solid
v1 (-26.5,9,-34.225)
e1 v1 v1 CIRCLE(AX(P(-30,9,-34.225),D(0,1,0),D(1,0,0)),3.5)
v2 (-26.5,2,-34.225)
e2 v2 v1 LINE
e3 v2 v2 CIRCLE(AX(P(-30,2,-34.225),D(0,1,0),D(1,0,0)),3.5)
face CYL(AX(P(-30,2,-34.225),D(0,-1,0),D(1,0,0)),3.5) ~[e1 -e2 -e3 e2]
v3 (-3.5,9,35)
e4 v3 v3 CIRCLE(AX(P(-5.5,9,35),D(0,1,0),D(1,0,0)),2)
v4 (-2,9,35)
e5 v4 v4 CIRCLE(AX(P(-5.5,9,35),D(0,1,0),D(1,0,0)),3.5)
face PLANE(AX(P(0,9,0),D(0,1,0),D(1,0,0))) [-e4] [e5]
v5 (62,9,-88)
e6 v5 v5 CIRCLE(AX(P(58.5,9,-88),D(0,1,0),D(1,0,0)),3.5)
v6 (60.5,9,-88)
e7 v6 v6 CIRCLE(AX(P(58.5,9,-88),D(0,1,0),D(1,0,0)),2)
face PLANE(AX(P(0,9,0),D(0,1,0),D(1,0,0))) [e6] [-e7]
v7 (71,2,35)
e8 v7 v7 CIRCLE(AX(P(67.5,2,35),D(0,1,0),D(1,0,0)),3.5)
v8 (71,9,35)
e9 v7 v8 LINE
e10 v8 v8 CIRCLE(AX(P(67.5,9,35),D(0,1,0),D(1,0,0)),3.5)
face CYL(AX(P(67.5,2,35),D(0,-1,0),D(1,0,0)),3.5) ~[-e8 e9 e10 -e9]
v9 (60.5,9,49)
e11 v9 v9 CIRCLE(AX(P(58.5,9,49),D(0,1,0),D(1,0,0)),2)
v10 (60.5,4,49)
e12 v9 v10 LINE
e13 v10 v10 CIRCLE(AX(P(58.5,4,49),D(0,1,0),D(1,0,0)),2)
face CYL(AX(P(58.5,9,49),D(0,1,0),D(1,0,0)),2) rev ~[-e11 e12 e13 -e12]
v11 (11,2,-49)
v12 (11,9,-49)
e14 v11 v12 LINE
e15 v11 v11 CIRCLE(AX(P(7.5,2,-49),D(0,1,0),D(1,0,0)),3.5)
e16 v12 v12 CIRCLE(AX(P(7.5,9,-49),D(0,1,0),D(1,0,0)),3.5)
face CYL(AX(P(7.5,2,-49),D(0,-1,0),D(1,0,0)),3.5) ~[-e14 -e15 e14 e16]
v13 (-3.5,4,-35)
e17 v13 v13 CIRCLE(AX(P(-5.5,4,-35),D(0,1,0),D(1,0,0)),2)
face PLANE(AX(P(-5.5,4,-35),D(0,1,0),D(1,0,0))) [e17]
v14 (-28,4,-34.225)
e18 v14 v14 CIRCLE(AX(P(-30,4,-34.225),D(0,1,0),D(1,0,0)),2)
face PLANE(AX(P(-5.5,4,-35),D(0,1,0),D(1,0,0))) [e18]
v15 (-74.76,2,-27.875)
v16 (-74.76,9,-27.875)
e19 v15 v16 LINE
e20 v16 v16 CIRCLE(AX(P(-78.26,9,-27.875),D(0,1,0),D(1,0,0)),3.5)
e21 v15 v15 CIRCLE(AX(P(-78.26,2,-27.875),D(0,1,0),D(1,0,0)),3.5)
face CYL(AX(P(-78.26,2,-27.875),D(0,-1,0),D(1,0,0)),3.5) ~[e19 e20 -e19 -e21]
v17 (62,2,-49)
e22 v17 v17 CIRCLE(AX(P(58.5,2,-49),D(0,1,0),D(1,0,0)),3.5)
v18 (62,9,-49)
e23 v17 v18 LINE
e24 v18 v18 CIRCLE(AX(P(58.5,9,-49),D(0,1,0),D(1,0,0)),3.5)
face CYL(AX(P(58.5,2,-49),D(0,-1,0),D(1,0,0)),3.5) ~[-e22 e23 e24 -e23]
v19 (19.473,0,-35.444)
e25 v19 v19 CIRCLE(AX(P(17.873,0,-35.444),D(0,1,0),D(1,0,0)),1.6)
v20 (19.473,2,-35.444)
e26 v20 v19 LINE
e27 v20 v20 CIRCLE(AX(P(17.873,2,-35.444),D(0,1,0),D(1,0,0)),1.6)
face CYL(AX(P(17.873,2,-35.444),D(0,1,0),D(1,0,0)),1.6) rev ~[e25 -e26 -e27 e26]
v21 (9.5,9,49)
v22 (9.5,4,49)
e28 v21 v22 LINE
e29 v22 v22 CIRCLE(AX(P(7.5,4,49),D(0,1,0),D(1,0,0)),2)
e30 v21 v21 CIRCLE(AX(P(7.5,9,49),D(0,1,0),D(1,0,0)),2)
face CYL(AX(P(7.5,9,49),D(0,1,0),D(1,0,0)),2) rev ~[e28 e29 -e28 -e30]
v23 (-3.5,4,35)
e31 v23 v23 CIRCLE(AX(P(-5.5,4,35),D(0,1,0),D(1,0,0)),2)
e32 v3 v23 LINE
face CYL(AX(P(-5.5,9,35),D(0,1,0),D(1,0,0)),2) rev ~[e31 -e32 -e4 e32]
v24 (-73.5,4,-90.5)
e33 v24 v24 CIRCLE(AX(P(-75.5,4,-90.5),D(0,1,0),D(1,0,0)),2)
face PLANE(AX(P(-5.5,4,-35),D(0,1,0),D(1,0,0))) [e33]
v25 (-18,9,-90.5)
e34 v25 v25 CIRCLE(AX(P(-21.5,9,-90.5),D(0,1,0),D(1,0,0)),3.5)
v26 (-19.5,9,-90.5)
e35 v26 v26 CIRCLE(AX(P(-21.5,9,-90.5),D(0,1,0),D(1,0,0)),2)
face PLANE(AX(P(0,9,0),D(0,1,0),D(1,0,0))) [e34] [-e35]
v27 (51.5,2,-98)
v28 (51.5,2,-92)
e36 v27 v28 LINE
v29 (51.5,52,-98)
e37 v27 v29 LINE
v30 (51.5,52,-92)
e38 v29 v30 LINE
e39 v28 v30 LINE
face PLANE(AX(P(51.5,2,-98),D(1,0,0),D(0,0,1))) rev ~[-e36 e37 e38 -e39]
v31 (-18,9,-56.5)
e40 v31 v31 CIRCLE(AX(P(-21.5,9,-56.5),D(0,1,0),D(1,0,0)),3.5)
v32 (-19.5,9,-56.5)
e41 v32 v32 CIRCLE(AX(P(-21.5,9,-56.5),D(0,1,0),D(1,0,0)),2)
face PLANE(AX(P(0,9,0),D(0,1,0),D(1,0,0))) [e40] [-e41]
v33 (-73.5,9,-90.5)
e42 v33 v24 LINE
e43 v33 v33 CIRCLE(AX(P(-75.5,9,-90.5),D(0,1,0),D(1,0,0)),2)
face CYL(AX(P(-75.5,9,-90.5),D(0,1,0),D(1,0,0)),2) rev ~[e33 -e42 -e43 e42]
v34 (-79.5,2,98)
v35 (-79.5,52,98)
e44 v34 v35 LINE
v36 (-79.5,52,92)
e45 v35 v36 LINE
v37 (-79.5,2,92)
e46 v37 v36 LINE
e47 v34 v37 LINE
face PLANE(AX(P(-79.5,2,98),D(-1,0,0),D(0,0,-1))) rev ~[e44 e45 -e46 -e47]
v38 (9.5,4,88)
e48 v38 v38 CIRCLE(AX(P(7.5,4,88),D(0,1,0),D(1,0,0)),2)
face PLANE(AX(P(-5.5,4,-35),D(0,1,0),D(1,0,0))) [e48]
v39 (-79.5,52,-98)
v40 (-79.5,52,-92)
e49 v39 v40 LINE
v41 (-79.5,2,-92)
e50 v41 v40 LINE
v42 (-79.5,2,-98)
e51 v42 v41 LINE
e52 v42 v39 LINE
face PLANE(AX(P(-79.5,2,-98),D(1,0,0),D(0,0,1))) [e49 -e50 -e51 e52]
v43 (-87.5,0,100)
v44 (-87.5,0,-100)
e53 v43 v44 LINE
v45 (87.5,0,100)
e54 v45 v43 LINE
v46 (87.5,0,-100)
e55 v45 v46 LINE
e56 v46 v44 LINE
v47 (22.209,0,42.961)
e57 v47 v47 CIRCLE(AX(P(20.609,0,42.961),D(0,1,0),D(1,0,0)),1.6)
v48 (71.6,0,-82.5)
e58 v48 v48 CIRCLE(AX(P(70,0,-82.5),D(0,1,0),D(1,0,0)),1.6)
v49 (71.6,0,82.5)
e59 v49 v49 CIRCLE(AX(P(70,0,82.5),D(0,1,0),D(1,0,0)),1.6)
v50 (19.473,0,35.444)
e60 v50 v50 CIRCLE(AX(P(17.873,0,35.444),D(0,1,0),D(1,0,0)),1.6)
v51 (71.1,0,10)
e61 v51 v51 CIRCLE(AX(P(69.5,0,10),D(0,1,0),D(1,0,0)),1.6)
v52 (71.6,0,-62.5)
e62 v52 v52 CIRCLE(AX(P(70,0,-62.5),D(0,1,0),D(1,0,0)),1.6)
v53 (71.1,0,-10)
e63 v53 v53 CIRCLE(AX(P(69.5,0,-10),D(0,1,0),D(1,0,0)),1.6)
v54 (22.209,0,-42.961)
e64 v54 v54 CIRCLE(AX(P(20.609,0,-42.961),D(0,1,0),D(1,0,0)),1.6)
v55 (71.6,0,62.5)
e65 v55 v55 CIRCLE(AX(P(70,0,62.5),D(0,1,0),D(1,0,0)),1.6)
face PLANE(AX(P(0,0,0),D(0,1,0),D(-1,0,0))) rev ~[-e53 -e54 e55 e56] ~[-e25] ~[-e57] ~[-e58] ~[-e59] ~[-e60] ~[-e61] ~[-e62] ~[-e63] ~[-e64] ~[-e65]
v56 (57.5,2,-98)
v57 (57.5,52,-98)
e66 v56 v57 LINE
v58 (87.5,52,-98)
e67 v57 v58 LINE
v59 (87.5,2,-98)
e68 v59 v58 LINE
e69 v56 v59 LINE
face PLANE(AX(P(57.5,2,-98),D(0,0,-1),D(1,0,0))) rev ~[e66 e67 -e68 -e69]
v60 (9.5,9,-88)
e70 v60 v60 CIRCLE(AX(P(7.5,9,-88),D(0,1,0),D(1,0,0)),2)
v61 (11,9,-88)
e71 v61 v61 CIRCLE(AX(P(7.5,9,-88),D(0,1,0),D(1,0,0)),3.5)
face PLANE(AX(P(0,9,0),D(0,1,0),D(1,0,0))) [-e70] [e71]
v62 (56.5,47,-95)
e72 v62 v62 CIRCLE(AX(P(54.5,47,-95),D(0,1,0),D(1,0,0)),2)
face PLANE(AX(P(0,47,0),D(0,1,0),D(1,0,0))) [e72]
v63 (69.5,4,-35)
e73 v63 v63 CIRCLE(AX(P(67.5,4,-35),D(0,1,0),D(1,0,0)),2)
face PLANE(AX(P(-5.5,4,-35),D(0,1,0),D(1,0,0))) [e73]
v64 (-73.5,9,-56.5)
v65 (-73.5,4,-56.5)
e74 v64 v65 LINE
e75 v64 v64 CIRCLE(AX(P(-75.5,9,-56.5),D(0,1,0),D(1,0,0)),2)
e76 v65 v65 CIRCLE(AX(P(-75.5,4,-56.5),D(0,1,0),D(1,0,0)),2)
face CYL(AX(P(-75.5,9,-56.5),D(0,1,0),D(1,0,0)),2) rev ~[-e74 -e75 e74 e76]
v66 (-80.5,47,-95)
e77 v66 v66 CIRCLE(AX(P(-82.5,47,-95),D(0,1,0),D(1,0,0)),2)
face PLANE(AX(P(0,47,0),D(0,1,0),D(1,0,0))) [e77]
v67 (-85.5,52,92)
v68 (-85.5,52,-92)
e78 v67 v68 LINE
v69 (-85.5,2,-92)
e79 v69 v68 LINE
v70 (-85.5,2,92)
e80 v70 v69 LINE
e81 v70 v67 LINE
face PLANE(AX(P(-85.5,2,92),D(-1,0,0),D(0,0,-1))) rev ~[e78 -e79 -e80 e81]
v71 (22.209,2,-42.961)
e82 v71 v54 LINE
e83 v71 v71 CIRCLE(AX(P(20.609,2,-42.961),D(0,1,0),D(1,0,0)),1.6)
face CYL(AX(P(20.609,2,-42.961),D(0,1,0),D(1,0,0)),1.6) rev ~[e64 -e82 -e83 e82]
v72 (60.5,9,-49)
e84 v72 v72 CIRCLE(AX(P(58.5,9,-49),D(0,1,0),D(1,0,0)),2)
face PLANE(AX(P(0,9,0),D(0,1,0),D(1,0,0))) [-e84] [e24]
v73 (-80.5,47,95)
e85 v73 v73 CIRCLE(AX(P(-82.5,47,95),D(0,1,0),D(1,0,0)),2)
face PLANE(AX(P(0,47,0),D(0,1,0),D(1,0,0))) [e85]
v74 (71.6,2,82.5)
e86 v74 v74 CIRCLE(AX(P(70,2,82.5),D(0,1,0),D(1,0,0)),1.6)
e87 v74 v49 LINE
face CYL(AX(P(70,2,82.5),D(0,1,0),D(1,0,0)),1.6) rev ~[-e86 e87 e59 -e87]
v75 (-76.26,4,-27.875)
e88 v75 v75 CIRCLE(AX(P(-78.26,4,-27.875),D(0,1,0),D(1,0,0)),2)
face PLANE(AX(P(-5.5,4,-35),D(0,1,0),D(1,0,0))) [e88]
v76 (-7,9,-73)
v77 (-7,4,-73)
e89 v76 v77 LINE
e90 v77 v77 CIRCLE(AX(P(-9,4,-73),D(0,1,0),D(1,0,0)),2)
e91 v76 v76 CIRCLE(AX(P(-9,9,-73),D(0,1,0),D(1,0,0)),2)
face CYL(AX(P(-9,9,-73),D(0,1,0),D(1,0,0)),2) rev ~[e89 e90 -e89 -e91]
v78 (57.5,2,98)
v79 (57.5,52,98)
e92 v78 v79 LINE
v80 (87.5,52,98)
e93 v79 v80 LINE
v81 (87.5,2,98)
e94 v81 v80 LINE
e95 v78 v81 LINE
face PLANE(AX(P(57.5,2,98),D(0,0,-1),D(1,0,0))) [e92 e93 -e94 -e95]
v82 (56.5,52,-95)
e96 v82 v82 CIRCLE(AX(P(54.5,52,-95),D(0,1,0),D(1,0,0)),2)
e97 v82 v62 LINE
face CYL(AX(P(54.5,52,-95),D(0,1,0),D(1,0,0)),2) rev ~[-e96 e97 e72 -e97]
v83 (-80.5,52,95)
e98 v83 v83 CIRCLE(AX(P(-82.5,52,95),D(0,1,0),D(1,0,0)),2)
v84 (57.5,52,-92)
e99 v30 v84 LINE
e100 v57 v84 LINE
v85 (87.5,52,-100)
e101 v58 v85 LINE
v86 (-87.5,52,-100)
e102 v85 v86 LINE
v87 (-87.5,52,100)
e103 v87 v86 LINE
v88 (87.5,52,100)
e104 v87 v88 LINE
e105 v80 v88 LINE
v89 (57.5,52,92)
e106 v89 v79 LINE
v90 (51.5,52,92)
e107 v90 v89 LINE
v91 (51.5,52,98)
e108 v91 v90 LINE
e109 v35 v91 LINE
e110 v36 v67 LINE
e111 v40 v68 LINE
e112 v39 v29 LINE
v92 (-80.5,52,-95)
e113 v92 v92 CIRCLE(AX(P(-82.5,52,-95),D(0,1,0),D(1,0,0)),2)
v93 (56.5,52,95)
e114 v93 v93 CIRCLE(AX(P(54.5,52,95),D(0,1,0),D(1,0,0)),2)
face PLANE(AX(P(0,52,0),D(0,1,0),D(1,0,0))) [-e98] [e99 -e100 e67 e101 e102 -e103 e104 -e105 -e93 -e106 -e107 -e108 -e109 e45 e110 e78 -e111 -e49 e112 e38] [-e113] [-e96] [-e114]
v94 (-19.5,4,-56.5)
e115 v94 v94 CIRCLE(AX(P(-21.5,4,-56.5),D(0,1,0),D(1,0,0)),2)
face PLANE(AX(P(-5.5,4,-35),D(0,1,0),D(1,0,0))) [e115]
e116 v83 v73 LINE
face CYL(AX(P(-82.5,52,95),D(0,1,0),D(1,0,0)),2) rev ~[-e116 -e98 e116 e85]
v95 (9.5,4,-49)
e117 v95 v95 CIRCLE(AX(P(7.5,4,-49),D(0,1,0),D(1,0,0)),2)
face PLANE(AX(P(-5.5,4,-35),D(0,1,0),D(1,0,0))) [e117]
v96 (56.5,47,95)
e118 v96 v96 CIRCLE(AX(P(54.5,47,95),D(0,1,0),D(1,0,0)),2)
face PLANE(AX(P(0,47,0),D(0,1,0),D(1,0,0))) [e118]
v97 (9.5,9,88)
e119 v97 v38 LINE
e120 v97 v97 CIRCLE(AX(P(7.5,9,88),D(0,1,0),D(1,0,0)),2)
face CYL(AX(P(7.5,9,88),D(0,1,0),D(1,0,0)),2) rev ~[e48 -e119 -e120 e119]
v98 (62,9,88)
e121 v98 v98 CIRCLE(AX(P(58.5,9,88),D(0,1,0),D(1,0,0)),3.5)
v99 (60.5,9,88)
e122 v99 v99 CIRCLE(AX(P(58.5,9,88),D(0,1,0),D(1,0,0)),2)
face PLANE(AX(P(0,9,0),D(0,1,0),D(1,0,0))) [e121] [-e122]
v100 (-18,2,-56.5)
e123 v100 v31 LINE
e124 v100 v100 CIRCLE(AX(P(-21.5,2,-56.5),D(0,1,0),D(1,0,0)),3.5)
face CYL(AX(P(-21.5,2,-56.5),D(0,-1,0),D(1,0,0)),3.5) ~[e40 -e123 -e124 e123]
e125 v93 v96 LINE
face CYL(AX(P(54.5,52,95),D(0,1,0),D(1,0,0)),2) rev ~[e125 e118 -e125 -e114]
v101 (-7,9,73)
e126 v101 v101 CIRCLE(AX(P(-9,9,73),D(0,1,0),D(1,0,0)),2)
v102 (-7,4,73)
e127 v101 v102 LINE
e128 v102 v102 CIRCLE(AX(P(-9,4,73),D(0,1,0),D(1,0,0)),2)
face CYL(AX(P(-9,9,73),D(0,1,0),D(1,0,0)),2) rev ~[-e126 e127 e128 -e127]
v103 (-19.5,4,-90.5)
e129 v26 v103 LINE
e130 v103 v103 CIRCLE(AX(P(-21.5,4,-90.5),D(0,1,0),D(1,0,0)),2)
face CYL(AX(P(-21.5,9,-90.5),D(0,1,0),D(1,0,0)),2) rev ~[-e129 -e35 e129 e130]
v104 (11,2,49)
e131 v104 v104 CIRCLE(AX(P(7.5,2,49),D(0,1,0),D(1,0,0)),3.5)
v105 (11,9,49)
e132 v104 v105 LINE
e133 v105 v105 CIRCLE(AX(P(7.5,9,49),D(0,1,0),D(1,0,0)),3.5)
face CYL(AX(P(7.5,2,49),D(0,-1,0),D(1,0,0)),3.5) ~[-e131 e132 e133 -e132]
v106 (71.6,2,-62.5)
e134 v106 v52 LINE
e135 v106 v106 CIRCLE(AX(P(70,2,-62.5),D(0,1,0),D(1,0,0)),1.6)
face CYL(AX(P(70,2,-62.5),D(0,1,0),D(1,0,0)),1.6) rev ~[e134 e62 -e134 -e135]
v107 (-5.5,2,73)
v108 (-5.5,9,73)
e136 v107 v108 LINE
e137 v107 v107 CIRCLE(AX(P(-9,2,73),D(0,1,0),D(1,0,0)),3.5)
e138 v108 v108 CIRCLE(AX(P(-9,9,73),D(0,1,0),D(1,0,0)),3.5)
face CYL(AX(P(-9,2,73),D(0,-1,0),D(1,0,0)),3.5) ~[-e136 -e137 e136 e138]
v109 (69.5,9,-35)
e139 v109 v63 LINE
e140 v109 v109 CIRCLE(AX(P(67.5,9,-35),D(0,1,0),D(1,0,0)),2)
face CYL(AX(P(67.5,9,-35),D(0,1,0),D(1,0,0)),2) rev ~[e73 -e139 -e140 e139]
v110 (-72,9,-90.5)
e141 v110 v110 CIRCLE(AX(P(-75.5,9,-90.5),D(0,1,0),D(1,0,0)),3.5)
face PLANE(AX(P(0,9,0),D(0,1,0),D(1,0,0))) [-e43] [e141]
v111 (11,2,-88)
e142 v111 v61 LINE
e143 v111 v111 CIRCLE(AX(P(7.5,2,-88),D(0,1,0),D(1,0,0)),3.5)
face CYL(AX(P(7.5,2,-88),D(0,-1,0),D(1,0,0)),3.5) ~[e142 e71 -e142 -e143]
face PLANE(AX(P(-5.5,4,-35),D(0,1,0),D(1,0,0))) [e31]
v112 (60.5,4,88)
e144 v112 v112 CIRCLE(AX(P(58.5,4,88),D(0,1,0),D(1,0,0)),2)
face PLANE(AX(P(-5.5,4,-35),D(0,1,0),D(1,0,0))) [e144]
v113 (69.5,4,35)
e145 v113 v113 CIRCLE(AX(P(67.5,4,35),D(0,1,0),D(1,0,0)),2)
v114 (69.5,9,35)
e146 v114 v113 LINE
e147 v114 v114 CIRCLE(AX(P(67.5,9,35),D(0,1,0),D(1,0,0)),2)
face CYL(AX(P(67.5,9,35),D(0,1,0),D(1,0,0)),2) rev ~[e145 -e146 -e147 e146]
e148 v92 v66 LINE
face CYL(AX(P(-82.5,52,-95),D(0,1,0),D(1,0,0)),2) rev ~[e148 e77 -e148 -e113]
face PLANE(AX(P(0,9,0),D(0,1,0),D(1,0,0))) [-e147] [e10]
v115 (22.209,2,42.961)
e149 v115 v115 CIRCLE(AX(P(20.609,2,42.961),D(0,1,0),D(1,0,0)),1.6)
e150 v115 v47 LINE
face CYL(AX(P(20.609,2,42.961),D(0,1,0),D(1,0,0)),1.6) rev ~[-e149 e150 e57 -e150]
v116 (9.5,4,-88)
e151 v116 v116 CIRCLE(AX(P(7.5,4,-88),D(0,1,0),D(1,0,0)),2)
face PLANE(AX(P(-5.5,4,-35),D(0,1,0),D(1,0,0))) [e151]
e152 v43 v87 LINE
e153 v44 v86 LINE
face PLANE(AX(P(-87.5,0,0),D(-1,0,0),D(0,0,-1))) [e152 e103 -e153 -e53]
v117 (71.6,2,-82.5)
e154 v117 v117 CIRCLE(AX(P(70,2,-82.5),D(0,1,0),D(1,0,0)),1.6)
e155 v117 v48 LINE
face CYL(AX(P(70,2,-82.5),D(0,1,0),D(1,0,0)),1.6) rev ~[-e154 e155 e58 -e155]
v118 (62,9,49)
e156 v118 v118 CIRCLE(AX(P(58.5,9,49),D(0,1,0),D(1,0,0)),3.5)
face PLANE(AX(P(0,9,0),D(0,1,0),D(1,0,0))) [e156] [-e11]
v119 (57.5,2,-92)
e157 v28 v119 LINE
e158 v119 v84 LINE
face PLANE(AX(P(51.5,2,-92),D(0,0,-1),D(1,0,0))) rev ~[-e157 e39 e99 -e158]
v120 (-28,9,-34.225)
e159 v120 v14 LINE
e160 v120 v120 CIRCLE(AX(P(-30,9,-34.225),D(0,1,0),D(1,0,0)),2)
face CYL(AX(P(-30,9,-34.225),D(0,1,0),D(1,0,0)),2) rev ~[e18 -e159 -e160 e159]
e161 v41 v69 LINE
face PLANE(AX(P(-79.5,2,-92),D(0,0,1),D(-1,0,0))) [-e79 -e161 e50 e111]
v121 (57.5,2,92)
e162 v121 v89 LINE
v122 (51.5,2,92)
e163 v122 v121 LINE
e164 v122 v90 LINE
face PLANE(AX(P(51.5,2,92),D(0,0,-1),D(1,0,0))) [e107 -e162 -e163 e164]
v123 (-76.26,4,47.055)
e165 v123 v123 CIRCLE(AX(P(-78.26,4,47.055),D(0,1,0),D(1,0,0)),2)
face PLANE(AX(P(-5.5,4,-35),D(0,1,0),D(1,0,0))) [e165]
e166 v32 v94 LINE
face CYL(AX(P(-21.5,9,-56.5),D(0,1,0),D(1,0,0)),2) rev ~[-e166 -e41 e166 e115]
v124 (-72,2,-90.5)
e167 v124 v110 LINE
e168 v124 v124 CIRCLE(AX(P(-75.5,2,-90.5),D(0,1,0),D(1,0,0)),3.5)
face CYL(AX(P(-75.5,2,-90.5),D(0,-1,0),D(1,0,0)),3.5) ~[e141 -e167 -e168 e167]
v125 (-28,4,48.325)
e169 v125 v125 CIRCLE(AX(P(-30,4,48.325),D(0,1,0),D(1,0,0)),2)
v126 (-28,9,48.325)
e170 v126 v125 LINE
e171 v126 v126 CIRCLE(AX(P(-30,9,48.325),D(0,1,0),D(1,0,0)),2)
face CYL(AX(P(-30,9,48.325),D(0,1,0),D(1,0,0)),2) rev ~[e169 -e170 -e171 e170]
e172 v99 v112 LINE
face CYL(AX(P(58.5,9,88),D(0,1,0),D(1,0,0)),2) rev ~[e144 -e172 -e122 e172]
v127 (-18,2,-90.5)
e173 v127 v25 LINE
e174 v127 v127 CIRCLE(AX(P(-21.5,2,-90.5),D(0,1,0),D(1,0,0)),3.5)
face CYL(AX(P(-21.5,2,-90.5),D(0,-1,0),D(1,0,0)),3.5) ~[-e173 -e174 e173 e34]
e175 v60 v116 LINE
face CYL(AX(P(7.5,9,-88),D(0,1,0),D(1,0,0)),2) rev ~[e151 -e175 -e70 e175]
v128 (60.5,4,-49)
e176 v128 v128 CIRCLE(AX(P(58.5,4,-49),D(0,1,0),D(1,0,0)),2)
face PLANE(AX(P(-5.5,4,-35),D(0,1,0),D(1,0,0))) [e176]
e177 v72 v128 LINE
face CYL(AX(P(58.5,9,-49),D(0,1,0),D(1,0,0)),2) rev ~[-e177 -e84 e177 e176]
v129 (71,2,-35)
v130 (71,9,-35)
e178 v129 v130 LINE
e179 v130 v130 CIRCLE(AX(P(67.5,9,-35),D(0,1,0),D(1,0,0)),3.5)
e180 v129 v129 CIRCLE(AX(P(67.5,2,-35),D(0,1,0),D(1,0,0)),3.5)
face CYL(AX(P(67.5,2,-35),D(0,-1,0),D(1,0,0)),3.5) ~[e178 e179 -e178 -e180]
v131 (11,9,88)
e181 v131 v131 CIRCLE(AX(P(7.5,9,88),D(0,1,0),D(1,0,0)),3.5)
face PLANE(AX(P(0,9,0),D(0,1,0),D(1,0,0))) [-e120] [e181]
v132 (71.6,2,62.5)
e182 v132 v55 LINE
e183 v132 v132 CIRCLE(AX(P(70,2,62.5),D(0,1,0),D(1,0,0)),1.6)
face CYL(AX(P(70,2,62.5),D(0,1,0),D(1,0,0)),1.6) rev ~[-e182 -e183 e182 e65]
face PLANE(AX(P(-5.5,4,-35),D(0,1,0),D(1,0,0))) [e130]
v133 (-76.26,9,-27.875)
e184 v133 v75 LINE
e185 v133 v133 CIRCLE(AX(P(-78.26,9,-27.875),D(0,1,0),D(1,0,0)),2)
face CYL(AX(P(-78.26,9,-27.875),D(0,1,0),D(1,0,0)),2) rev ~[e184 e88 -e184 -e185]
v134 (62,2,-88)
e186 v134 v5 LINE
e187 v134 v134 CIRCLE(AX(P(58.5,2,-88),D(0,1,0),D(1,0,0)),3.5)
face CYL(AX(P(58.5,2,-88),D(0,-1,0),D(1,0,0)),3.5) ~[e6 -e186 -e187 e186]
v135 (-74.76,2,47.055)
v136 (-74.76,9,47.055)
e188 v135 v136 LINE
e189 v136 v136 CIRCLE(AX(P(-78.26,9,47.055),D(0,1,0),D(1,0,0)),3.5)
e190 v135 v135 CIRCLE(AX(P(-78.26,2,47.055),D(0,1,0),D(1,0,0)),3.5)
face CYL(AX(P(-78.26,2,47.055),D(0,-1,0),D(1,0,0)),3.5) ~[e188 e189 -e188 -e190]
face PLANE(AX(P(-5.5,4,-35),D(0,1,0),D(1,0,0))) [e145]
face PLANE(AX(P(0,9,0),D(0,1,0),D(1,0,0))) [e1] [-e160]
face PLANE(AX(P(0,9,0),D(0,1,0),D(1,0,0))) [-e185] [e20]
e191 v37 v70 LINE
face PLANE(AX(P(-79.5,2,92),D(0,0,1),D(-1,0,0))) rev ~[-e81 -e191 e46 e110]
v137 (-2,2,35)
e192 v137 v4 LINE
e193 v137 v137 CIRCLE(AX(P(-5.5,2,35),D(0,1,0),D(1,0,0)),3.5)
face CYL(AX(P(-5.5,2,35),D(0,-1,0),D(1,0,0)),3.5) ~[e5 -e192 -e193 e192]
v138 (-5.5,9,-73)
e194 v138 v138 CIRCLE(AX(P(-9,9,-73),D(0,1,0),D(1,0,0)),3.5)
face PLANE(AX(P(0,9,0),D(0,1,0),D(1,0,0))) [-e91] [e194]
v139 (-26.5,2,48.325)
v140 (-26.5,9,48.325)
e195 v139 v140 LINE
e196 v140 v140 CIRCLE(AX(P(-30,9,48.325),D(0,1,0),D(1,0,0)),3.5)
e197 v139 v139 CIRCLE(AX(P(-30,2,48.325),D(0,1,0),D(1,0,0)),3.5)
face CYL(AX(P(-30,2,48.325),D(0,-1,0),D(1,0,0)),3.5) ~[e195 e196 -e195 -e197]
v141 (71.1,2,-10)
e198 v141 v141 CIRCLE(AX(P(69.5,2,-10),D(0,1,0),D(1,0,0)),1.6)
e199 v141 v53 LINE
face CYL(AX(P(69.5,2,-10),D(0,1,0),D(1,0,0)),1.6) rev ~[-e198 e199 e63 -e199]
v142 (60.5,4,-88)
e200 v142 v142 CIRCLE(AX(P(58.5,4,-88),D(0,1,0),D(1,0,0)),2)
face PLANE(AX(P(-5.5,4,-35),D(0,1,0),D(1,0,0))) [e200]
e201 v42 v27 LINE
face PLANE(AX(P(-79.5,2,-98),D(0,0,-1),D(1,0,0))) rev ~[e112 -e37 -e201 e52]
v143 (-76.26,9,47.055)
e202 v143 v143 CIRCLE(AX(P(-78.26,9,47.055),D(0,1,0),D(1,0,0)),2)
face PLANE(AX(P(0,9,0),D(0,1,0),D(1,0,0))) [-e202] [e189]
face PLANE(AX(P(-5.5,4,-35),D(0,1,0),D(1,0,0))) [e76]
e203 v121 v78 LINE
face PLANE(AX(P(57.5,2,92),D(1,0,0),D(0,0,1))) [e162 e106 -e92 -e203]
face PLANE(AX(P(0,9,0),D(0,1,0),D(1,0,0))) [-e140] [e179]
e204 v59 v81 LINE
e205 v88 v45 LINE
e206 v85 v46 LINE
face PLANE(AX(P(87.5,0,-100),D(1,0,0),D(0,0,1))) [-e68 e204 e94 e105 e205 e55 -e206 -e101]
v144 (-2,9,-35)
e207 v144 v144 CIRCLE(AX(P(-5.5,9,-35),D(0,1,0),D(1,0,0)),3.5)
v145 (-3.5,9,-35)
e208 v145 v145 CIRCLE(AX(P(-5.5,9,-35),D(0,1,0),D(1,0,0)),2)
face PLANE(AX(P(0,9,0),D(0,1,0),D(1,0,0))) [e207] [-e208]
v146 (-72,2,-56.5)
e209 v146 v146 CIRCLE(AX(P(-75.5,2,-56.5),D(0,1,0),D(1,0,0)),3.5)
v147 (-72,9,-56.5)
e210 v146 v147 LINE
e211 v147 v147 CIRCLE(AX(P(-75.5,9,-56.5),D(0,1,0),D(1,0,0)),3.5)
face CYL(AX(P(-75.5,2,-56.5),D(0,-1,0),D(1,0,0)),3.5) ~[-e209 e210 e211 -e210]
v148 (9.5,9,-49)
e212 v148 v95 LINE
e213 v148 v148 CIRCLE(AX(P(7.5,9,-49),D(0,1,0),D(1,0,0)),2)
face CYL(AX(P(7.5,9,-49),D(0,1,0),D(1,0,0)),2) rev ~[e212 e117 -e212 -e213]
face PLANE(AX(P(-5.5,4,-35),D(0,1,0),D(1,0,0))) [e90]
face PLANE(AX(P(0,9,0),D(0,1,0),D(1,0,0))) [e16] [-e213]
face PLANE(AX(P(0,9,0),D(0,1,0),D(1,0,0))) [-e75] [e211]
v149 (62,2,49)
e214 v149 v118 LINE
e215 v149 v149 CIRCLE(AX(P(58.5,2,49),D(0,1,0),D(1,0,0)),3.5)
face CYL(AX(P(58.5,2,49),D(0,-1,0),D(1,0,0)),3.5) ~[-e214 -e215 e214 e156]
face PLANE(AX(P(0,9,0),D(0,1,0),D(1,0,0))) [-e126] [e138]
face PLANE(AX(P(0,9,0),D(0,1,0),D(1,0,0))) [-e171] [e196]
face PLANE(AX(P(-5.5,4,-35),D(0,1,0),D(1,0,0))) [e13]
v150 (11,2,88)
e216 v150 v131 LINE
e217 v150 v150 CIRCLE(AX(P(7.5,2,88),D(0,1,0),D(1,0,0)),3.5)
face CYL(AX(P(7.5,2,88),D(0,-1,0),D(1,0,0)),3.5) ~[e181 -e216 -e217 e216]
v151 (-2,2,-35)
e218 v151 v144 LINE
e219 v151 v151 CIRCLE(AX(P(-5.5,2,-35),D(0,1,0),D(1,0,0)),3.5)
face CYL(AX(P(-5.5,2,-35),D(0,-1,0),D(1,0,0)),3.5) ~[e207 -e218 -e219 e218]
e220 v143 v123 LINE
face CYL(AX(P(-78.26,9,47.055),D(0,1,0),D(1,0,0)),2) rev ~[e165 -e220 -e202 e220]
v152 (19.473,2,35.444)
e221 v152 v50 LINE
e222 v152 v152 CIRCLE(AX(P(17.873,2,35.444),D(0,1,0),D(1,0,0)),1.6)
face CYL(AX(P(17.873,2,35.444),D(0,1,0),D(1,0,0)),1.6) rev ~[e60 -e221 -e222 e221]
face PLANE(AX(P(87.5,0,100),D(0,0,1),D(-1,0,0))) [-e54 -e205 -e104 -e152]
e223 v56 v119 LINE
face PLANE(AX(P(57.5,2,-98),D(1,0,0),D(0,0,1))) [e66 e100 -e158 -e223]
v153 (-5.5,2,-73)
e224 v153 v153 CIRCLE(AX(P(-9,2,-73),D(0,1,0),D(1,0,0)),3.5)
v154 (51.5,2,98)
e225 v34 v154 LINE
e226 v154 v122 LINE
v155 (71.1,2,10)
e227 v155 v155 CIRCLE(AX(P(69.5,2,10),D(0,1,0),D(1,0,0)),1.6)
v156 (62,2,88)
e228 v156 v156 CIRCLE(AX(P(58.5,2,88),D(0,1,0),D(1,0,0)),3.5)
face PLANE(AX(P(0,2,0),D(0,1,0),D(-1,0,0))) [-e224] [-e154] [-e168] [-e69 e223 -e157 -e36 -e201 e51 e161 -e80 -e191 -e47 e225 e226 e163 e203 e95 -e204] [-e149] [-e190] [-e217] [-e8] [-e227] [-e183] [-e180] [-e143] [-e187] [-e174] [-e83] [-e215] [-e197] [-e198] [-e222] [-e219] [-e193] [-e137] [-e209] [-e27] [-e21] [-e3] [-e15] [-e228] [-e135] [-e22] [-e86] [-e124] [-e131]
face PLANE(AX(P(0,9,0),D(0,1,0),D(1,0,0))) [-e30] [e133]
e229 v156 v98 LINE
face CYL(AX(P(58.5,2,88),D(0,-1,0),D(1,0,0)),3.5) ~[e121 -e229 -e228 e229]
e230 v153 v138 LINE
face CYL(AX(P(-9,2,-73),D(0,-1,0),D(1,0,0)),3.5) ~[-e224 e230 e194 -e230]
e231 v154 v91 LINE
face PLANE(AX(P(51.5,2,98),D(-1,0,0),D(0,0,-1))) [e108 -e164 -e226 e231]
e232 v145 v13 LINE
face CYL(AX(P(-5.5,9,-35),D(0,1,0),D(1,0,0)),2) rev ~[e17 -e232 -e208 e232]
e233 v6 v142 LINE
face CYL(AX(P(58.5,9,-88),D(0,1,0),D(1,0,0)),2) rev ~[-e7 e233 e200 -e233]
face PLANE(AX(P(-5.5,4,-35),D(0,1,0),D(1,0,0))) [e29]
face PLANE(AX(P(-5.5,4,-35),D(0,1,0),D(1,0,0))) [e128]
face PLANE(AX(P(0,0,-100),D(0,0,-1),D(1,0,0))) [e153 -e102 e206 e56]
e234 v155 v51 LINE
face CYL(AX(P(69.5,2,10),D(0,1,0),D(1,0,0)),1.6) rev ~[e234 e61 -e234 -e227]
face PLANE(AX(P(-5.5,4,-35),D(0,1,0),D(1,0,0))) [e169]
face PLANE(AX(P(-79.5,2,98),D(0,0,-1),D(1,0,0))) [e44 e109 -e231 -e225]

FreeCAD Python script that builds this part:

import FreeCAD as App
import Part
import Sketcher

V = App.Vector
Q = App.Units.Quantity

doc = App.newDocument("Part")
body = doc.addObject("PartDesign::Body", "Body")

sketch1 = body.newObject("Sketcher::SketchObject", "Sketch")
sketch1.AttachmentSupport = (doc.getObject("XZ_Plane"), [""])
sketch1.MapMode = "FlatFace"
sketch1.addGeometry(Part.LineSegment(V(87.5, -100, 0), V(-87.5, -100, 0)), False)
sketch1.addGeometry(Part.LineSegment(V(-87.5, -100, 0), V(-87.5, 100, 0)), False)
sketch1.addGeometry(Part.LineSegment(V(-87.5, 100, 0), V(87.5, 100, 0)), False)
sketch1.addGeometry(Part.LineSegment(V(87.5, 100, 0), V(87.5, -100, 0)), False)
sketch1.addConstraint(Sketcher.Constraint("Coincident", 0, 2, 1, 1))
sketch1.addConstraint(Sketcher.Constraint("Coincident", 1, 2, 2, 1))
sketch1.addConstraint(Sketcher.Constraint("Coincident", 2, 2, 3, 1))
sketch1.addConstraint(Sketcher.Constraint("Coincident", 3, 2, 0, 1))
sketch1.addConstraint(Sketcher.Constraint("Horizontal", 0))
sketch1.addConstraint(Sketcher.Constraint("Vertical", 1))
sketch1.addConstraint(Sketcher.Constraint("Horizontal", 2))
sketch1.addConstraint(Sketcher.Constraint("Vertical", 3))
sketch1.addConstraint(Sketcher.Constraint("Symmetric", 0, 2, 2, 2, -1, 1))
sketch1.addConstraint(Sketcher.Constraint("DistanceX", 0, 2, 0, 1, Q("175 mm")))
sketch1.addConstraint(Sketcher.Constraint("DistanceY", 1, 1, 1, 2, Q("200 mm")))
pad1 = body.newObject("PartDesign::Pad", "Pad")
pad1.Profile = sketch1
pad1.Length = 2
pad1.Reversed = True

sketch2 = body.newObject("Sketcher::SketchObject", "Sketch001")
sketch2.AttachmentSupport = (doc.getObject("XZ_Plane"), [""])
sketch2.MapMode = "FlatFace"
sketch2.AttachmentOffset = App.Placement(V(0, 0, -2), App.Rotation())
sketch2.addGeometry(Part.Circle(V(70, -82.5, 0), V(0, 0, 1), 1.6), False)
sketch2.addGeometry(Part.Circle(V(70, -62.5, 0), V(0, 0, 1), 1.6), False)
sketch2.addGeometry(Part.Circle(V(70, 82.5, 0), V(0, 0, 1), 1.6), False)
sketch2.addGeometry(Part.Circle(V(70, 62.5, 0), V(0, 0, 1), 1.6), False)
sketch2.addConstraint(Sketcher.Constraint("Equal", 0, 1))
sketch2.addConstraint(Sketcher.Constraint("Equal", 1, 2))
sketch2.addConstraint(Sketcher.Constraint("Equal", 2, 3))
sketch2.addConstraint(Sketcher.Constraint("Symmetric", 0, 3, 2, 3, -1))
sketch2.addConstraint(Sketcher.Constraint("Symmetric", 1, 3, 3, 3, -1))
sketch2.addConstraint(Sketcher.Constraint("Vertical", 0, 3, 1, 3))
sketch2.addConstraint(Sketcher.Constraint("Diameter", 0, Q("3.2 mm")))
sketch2.addConstraint(Sketcher.Constraint("DistanceY", 0, 3, 1, 3, Q("20 mm")))
sketch2.addConstraint(Sketcher.Constraint("DistanceX", -1, 1, 0, 3, Q("70 mm")))
sketch2.addConstraint(Sketcher.Constraint("DistanceY", 1, 3, 2, 3, Q("145 mm")))
pocket1 = body.newObject("PartDesign::Pocket", "Pocket")
pocket1.Profile = sketch2
pocket1.Length = 2
pocket1.Reversed = True

sketch3 = body.newObject("Sketcher::SketchObject", "Sketch002")
sketch3.AttachmentSupport = (doc.getObject("XZ_Plane"), [""])
sketch3.MapMode = "FlatFace"
sketch3.AttachmentOffset = App.Placement(V(0, 0, -2), App.Rotation())
sketch3.addGeometry(Part.LineSegment(V(-87.5, 100, 0), V(87.5, 100, 0)), False)
sketch3.addGeometry(Part.LineSegment(V(87.5, 100, 0), V(87.5, 98, 0)), False)
sketch3.addGeometry(Part.LineSegment(V(87.5, 98, 0), V(57.5, 98, 0)), False)
sketch3.addGeometry(Part.LineSegment(V(57.5, 98, 0), V(57.5, 92, 0)), False)
sketch3.addGeometry(Part.LineSegment(V(57.5, 92, 0), V(51.5, 92, 0)), False)
sketch3.addGeometry(Part.LineSegment(V(51.5, 92, 0), V(51.5, 98, 0)), False)
sketch3.addGeometry(Part.LineSegment(V(51.5, 98, 0), V(-79.5, 98, 0)), False)
sketch3.addGeometry(Part.LineSegment(V(-79.5, 98, 0), V(-79.5, 92, 0)), False)
sketch3.addGeometry(Part.LineSegment(V(-79.5, 92, 0), V(-85.5, 92, 0)), False)
sketch3.addGeometry(Part.LineSegment(V(-85.5, 92, 0), V(-85.5, -92, 0)), False)
sketch3.addGeometry(Part.LineSegment(V(-85.5, -92, 0), V(-79.5, -92, 0)), False)
sketch3.addGeometry(Part.LineSegment(V(-79.5, -92, 0), V(-79.5, -98, 0)), False)
sketch3.addGeometry(Part.LineSegment(V(-79.5, -98, 0), V(51.5, -98, 0)), False)
sketch3.addGeometry(Part.LineSegment(V(51.5, -98, 0), V(51.5, -92, 0)), False)
sketch3.addGeometry(Part.LineSegment(V(51.5, -92, 0), V(57.5, -92, 0)), False)
sketch3.addGeometry(Part.LineSegment(V(57.5, -92, 0), V(57.5, -98, 0)), False)
sketch3.addGeometry(Part.LineSegment(V(57.5, -98, 0), V(87.5, -98, 0)), False)
sketch3.addGeometry(Part.LineSegment(V(87.5, -98, 0), V(87.5, -100, 0)), False)
sketch3.addGeometry(Part.LineSegment(V(87.5, -100, 0), V(-87.5, -100, 0)), False)
sketch3.addGeometry(Part.LineSegment(V(-87.5, -100, 0), V(-87.5, 100, 0)), False)
sketch3.addConstraint(Sketcher.Constraint("Coincident", 0, 2, 1, 1))
sketch3.addConstraint(Sketcher.Constraint("Coincident", 1, 2, 2, 1))
sketch3.addConstraint(Sketcher.Constraint("Coincident", 2, 2, 3, 1))
sketch3.addConstraint(Sketcher.Constraint("Coincident", 3, 2, 4, 1))
sketch3.addConstraint(Sketcher.Constraint("Coincident", 4, 2, 5, 1))
sketch3.addConstraint(Sketcher.Constraint("Coincident", 5, 2, 6, 1))
sketch3.addConstraint(Sketcher.Constraint("Coincident", 6, 2, 7, 1))
sketch3.addConstraint(Sketcher.Constraint("Coincident", 7, 2, 8, 1))
sketch3.addConstraint(Sketcher.Constraint("Coincident", 8, 2, 9, 1))
sketch3.addConstraint(Sketcher.Constraint("Coincident", 9, 2, 10, 1))
sketch3.addConstraint(Sketcher.Constraint("Coincident", 10, 2, 11, 1))
sketch3.addConstraint(Sketcher.Constraint("Coincident", 11, 2, 12, 1))
sketch3.addConstraint(Sketcher.Constraint("Coincident", 12, 2, 13, 1))
sketch3.addConstraint(Sketcher.Constraint("Coincident", 13, 2, 14, 1))
sketch3.addConstraint(Sketcher.Constraint("Coincident", 14, 2, 15, 1))
sketch3.addConstraint(Sketcher.Constraint("Coincident", 15, 2, 16, 1))
sketch3.addConstraint(Sketcher.Constraint("Coincident", 16, 2, 17, 1))
sketch3.addConstraint(Sketcher.Constraint("Coincident", 17, 2, 18, 1))
sketch3.addConstraint(Sketcher.Constraint("Coincident", 18, 2, 19, 1))
sketch3.addConstraint(Sketcher.Constraint("Coincident", 19, 2, 0, 1))
sketch3.addConstraint(Sketcher.Constraint("Horizontal", 0))
sketch3.addConstraint(Sketcher.Constraint("Vertical", 1))
sketch3.addConstraint(Sketcher.Constraint("Horizontal", 2))
sketch3.addConstraint(Sketcher.Constraint("Vertical", 3))
sketch3.addConstraint(Sketcher.Constraint("Horizontal", 4))
sketch3.addConstraint(Sketcher.Constraint("Vertical", 5))
sketch3.addConstraint(Sketcher.Constraint("Horizontal", 6))
sketch3.addConstraint(Sketcher.Constraint("Vertical", 7))
sketch3.addConstraint(Sketcher.Constraint("Horizontal", 8))
sketch3.addConstraint(Sketcher.Constraint("Vertical", 9))
sketch3.addConstraint(Sketcher.Constraint("Horizontal", 10))
sketch3.addConstraint(Sketcher.Constraint("Vertical", 11))
sketch3.addConstraint(Sketcher.Constraint("Horizontal", 12))
sketch3.addConstraint(Sketcher.Constraint("Vertical", 13))
sketch3.addConstraint(Sketcher.Constraint("Horizontal", 14))
sketch3.addConstraint(Sketcher.Constraint("Vertical", 15))
sketch3.addConstraint(Sketcher.Constraint("Horizontal", 16))
sketch3.addConstraint(Sketcher.Constraint("Vertical", 17))
sketch3.addConstraint(Sketcher.Constraint("Horizontal", 18))
sketch3.addConstraint(Sketcher.Constraint("Vertical", 19))
sketch3.addConstraint(Sketcher.Constraint("Symmetric", 0, 2, 18, 2, -1, 1))
sketch3.addConstraint(Sketcher.Constraint("Symmetric", 7, 2, 10, 2, -1))
sketch3.addConstraint(Sketcher.Constraint("Symmetric", 5, 2, 12, 2, -1))
sketch3.addConstraint(Sketcher.Constraint("Symmetric", 3, 2, 14, 2, -1))
sketch3.addConstraint(Sketcher.Constraint("Symmetric", 1, 2, 16, 2, -1))
sketch3.addConstraint(Sketcher.Constraint("Horizontal", 2, 2, 5, 2))
sketch3.addConstraint(Sketcher.Constraint("Horizontal", 4, 2, 7, 2))
sketch3.addConstraint(Sketcher.Constraint("Equal", 4, 8))
sketch3.addConstraint(Sketcher.Constraint("Equal", 14, 3))
sketch3.addConstraint(Sketcher.Constraint("DistanceX", 2, 2, 2, 1, Q("30 mm")))
sketch3.addConstraint(Sketcher.Constraint("DistanceX", 4, 2, 4, 1, Q("6 mm")))
sketch3.addConstraint(Sketcher.Constraint("DistanceY", 1, 2, 1, 1, Q("2 mm")))
sketch3.addConstraint(Sketcher.Constraint("DistanceX", 18, 2, 9, 2, Q("2 mm")))
sketch3.addConstraint(Sketcher.Constraint("DistanceX", 0, 1, 0, 2, Q("175 mm")))
sketch3.addConstraint(Sketcher.Constraint("DistanceY", 9, 2, 9, 1, Q("184 mm")))
pad2 = body.newObject("PartDesign::Pad", "Pad001")
pad2.Profile = sketch3
pad2.Length = 50
pad2.Reversed = True

sketch4 = body.newObject("Sketcher::SketchObject", "Sketch003")
sketch4.AttachmentSupport = (doc.getObject("XZ_Plane"), [""])
sketch4.MapMode = "FlatFace"
sketch4.AttachmentOffset = App.Placement(V(0, 0, -2), App.Rotation())
sketch4.addGeometry(Part.Circle(V(67.5, -35, 0), V(0, 0, 1), 3.5), False)
sketch4.addGeometry(Part.Circle(V(67.5, 35, 0), V(0, 0, 1), 3.5), False)
sketch4.addGeometry(Part.Circle(V(-5.5, 35, 0), V(0, 0, 1), 3.5), False)
sketch4.addGeometry(Part.Circle(V(-5.5, -35, 0), V(0, 0, 1), 3.5), False)
sketch4.addGeometry(Part.Circle(V(-30, 48.325, 0), V(0, 0, 1), 3.5), False)
sketch4.addGeometry(Part.Circle(V(-30, -34.225, 0), V(0, 0, 1), 3.5), False)
sketch4.addGeometry(Part.Circle(V(-78.26, -27.875, 0), V(0, 0, 1), 3.5), False)
sketch4.addGeometry(Part.Circle(V(-78.26, 47.055, 0), V(0, 0, 1), 3.5), False)
sketch4.addGeometry(Part.Circle(V(7.5, -49, 0), V(0, 0, 1), 3.5), False)
sketch4.addGeometry(Part.Circle(V(7.5, -88, 0), V(0, 0, 1), 3.5), False)
sketch4.addGeometry(Part.Circle(V(58.5, -49, 0), V(0, 0, 1), 3.5), False)
sketch4.addGeometry(Part.Circle(V(58.5, -88, 0), V(0, 0, 1), 3.5), False)
sketch4.addGeometry(Part.Circle(V(7.5, 49, 0), V(0, 0, 1), 3.5), False)
sketch4.addGeometry(Part.Circle(V(7.5, 88, 0), V(0, 0, 1), 3.5), False)
sketch4.addGeometry(Part.Circle(V(58.5, 49, 0), V(0, 0, 1), 3.5), False)
sketch4.addGeometry(Part.Circle(V(58.5, 88, 0), V(0, 0, 1), 3.5), False)
sketch4.addGeometry(Part.Circle(V(-75.5, -56.5, 0), V(0, 0, 1), 3.5), False)
sketch4.addGeometry(Part.Circle(V(-75.5, -90.5, 0), V(0, 0, 1), 3.5), False)
sketch4.addGeometry(Part.Circle(V(-21.5, -56.5, 0), V(0, 0, 1), 3.5), False)
sketch4.addGeometry(Part.Circle(V(-21.5, -90.5, 0), V(0, 0, 1), 3.5), False)
sketch4.addGeometry(Part.Circle(V(-9, -73, 0), V(0, 0, 1), 3.5), False)
sketch4.addGeometry(Part.Circle(V(-9, 73, 0), V(0, 0, 1), 3.5), False)
sketch4.addConstraint(Sketcher.Constraint("Equal", 0, 1))
sketch4.addConstraint(Sketcher.Constraint("Equal", 1, 2))
sketch4.addConstraint(Sketcher.Constraint("Equal", 2, 3))
sketch4.addConstraint(Sketcher.Constraint("Equal", 3, 4))
sketch4.addConstraint(Sketcher.Constraint("Equal", 4, 5))
sketch4.addConstraint(Sketcher.Constraint("Equal", 5, 6))
sketch4.addConstraint(Sketcher.Constraint("Equal", 6, 7))
sketch4.addConstraint(Sketcher.Constraint("Equal", 7, 8))
sketch4.addConstraint(Sketcher.Constraint("Equal", 8, 9))
sketch4.addConstraint(Sketcher.Constraint("Equal", 9, 10))
sketch4.addConstraint(Sketcher.Constraint("Equal", 10, 11))
sketch4.addConstraint(Sketcher.Constraint("Equal", 11, 12))
sketch4.addConstraint(Sketcher.Constraint("Equal", 12, 13))
sketch4.addConstraint(Sketcher.Constraint("Equal", 13, 14))
sketch4.addConstraint(Sketcher.Constraint("Equal", 14, 15))
sketch4.addConstraint(Sketcher.Constraint("Equal", 15, 16))
sketch4.addConstraint(Sketcher.Constraint("Equal", 16, 17))
sketch4.addConstraint(Sketcher.Constraint("Equal", 17, 18))
sketch4.addConstraint(Sketcher.Constraint("Equal", 18, 19))
sketch4.addConstraint(Sketcher.Constraint("Equal", 19, 20))
sketch4.addConstraint(Sketcher.Constraint("Equal", 20, 21))
sketch4.addConstraint(Sketcher.Constraint("Symmetric", 0, 3, 1, 3, -1))
sketch4.addConstraint(Sketcher.Constraint("Symmetric", 2, 3, 3, 3, -1))
sketch4.addConstraint(Sketcher.Constraint("Symmetric", 8, 3, 12, 3, -1))
sketch4.addConstraint(Sketcher.Constraint("Symmetric", 9, 3, 13, 3, -1))
sketch4.addConstraint(Sketcher.Constraint("Symmetric", 10, 3, 14, 3, -1))
sketch4.addConstraint(Sketcher.Constraint("Symmetric", 11, 3, 15, 3, -1))
sketch4.addConstraint(Sketcher.Constraint("Symmetric", 20, 3, 21, 3, -1))
sketch4.addConstraint(Sketcher.Constraint("Horizontal", 1, 3, 2, 3))
sketch4.addConstraint(Sketcher.Constraint("Horizontal", 8, 3, 10, 3))
sketch4.addConstraint(Sketcher.Constraint("Horizontal", 9, 3, 11, 3))
sketch4.addConstraint(Sketcher.Constraint("Horizontal", 16, 3, 18, 3))
sketch4.addConstraint(Sketcher.Constraint("Horizontal", 17, 3, 19, 3))
sketch4.addConstraint(Sketcher.Constraint("Vertical", 4, 3, 5, 3))
sketch4.addConstraint(Sketcher.Constraint("Vertical", 6, 3, 7, 3))
sketch4.addConstraint(Sketcher.Constraint("Vertical", 8, 3, 9, 3))
sketch4.addConstraint(Sketcher.Constraint("Vertical", 10, 3, 11, 3))
sketch4.addConstraint(Sketcher.Constraint("Vertical", 16, 3, 17, 3))
sketch4.addConstraint(Sketcher.Constraint("Vertical", 18, 3, 19, 3))
sketch4.addConstraint(Sketcher.Constraint("Diameter", 0, Q("7 mm")))
sketch4.addConstraint(Sketcher.Constraint("DistanceY", 0, 3, -1, 1, Q("35 mm")))
sketch4.addConstraint(Sketcher.Constraint("DistanceX", 4, 3, -1, 1, Q("30 mm")))
sketch4.addConstraint(Sketcher.Constraint("DistanceX", 20, 3, -1, 1, Q("9 mm")))
sketch4.addConstraint(Sketcher.Constraint("DistanceY", 20, 3, -1, 1, Q("73 mm")))
sketch4.addConstraint(Sketcher.Constraint("DistanceX", 2, 3, 1, 3, Q("73 mm")))
sketch4.addConstraint(Sketcher.Constraint("DistanceY", 9, 3, 8, 3, Q("39 mm")))
sketch4.addConstraint(Sketcher.Constraint("DistanceX", 10, 3, 0, 3, Q("9 mm")))
sketch4.addConstraint(Sketcher.Constraint("DistanceX", 8, 3, 10, 3, Q("51 mm")))
sketch4.addConstraint(Sketcher.Constraint("DistanceX", 16, 3, 3, 3, Q("70 mm")))
sketch4.addConstraint(Sketcher.Constraint("DistanceY", 17, 3, 16, 3, Q("34 mm")))
sketch4.addConstraint(Sketcher.Constraint("DistanceX", 16, 3, 18, 3, Q("54 mm")))
sketch4.addConstraint(Sketcher.Constraint("DistanceX", -1, 1, 8, 3, Q("7.5 mm")))
sketch4.addConstraint(Sketcher.Constraint("DistanceY", 16, 3, 8, 3, Q("7.5 mm")))
sketch4.addConstraint(Sketcher.Constraint("DistanceY", 5, 3, 4, 3, Q("82.55 mm")))
sketch4.addConstraint(Sketcher.Constraint("DistanceX", 6, 3, 5, 3, Q("48.26 mm")))
sketch4.addConstraint(Sketcher.Constraint("DistanceY", 6, 3, 7, 3, Q("74.93 mm")))
sketch4.addConstraint(Sketcher.Constraint("DistanceY", 5, 3, -1, 1, Q("34.225 mm")))
sketch4.addConstraint(Sketcher.Constraint("DistanceY", -1, 1, 7, 3, Q("47.055 mm")))
sketch4.addConstraint(Sketcher.Constraint("DistanceY", 8, 3, -1, 1, Q("49 mm")))
pad3 = body.newObject("PartDesign::Pad", "Pad002")
pad3.Profile = sketch4
pad3.Length = 7
pad3.Reversed = True

sketch5 = body.newObject("Sketcher::SketchObject", "Sketch004")
sketch5.AttachmentSupport = (doc.getObject("XZ_Plane"), [""])
sketch5.MapMode = "FlatFace"
sketch5.AttachmentOffset = App.Placement(V(0, 0, -9), App.Rotation())
sketch5.addGeometry(Part.Circle(V(-5.5, -35, 0), V(0, 0, 1), 2), False)
sketch5.addGeometry(Part.Circle(V(67.5, -35, 0), V(0, 0, 1), 2), False)
sketch5.addGeometry(Part.Circle(V(-5.5, 35, 0), V(0, 0, 1), 2), False)
sketch5.addGeometry(Part.Circle(V(67.5, 35, 0), V(0, 0, 1), 2), False)
sketch5.addGeometry(Part.Circle(V(-78.26, 47.055, 0), V(0, 0, 1), 2), False)
sketch5.addGeometry(Part.Circle(V(-30, 48.325, 0), V(0, 0, 1), 2), False)
sketch5.addGeometry(Part.Circle(V(-30, -34.225, 0), V(0, 0, 1), 2), False)
sketch5.addGeometry(Part.Circle(V(-78.26, -27.875, 0), V(0, 0, 1), 2), False)
sketch5.addGeometry(Part.Circle(V(7.5, 88, 0), V(0, 0, 1), 2), False)
sketch5.addGeometry(Part.Circle(V(7.5, 49, 0), V(0, 0, 1), 2), False)
sketch5.addGeometry(Part.Circle(V(58.5, 88, 0), V(0, 0, 1), 2), False)
sketch5.addGeometry(Part.Circle(V(58.5, 49, 0), V(0, 0, 1), 2), False)
sketch5.addGeometry(Part.Circle(V(7.5, -88, 0), V(0, 0, 1), 2), False)
sketch5.addGeometry(Part.Circle(V(7.5, -49, 0), V(0, 0, 1), 2), False)
sketch5.addGeometry(Part.Circle(V(58.5, -88, 0), V(0, 0, 1), 2), False)
sketch5.addGeometry(Part.Circle(V(58.5, -49, 0), V(0, 0, 1), 2), False)
sketch5.addGeometry(Part.Circle(V(-75.5, -56.5, 0), V(0, 0, 1), 2), False)
sketch5.addGeometry(Part.Circle(V(-75.5, -90.5, 0), V(0, 0, 1), 2), False)
sketch5.addGeometry(Part.Circle(V(-21.5, -56.5, 0), V(0, 0, 1), 2), False)
sketch5.addGeometry(Part.Circle(V(-21.5, -90.5, 0), V(0, 0, 1), 2), False)
sketch5.addGeometry(Part.Circle(V(-9, 73, 0), V(0, 0, 1), 2), False)
sketch5.addGeometry(Part.Circle(V(-9, -73, 0), V(0, 0, 1), 2), False)
sketch5.addConstraint(Sketcher.Constraint("Equal", 0, 1))
sketch5.addConstraint(Sketcher.Constraint("Equal", 1, 2))
sketch5.addConstraint(Sketcher.Constraint("Equal", 2, 3))
sketch5.addConstraint(Sketcher.Constraint("Equal", 3, 4))
sketch5.addConstraint(Sketcher.Constraint("Equal", 4, 5))
sketch5.addConstraint(Sketcher.Constraint("Equal", 5, 6))
sketch5.addConstraint(Sketcher.Constraint("Equal", 6, 7))
sketch5.addConstraint(Sketcher.Constraint("Equal", 7, 8))
sketch5.addConstraint(Sketcher.Constraint("Equal", 8, 9))
sketch5.addConstraint(Sketcher.Constraint("Equal", 9, 10))
sketch5.addConstraint(Sketcher.Constraint("Equal", 10, 11))
sketch5.addConstraint(Sketcher.Constraint("Equal", 11, 12))
sketch5.addConstraint(Sketcher.Constraint("Equal", 12, 13))
sketch5.addConstraint(Sketcher.Constraint("Equal", 13, 14))
sketch5.addConstraint(Sketcher.Constraint("Equal", 14, 15))
sketch5.addConstraint(Sketcher.Constraint("Equal", 15, 16))
sketch5.addConstraint(Sketcher.Constraint("Equal", 16, 17))
sketch5.addConstraint(Sketcher.Constraint("Equal", 17, 18))
sketch5.addConstraint(Sketcher.Constraint("Equal", 18, 19))
sketch5.addConstraint(Sketcher.Constraint("Equal", 19, 20))
sketch5.addConstraint(Sketcher.Constraint("Equal", 20, 21))
sketch5.addConstraint(Sketcher.Constraint("Symmetric", 0, 3, 2, 3, -1))
sketch5.addConstraint(Sketcher.Constraint("Symmetric", 1, 3, 3, 3, -1))
sketch5.addConstraint(Sketcher.Constraint("Symmetric", 8, 3, 12, 3, -1))
sketch5.addConstraint(Sketcher.Constraint("Symmetric", 9, 3, 13, 3, -1))
sketch5.addConstraint(Sketcher.Constraint("Symmetric", 10, 3, 14, 3, -1))
sketch5.addConstraint(Sketcher.Constraint("Symmetric", 11, 3, 15, 3, -1))
sketch5.addConstraint(Sketcher.Constraint("Symmetric", 20, 3, 21, 3, -1))
sketch5.addConstraint(Sketcher.Constraint("Horizontal", 0, 3, 1, 3))
sketch5.addConstraint(Sketcher.Constraint("Horizontal", 8, 3, 10, 3))
sketch5.addConstraint(Sketcher.Constraint("Horizontal", 9, 3, 11, 3))
sketch5.addConstraint(Sketcher.Constraint("Horizontal", 16, 3, 18, 3))
sketch5.addConstraint(Sketcher.Constraint("Horizontal", 17, 3, 19, 3))
sketch5.addConstraint(Sketcher.Constraint("Vertical", 5, 3, 6, 3))
sketch5.addConstraint(Sketcher.Constraint("Vertical", 4, 3, 7, 3))
sketch5.addConstraint(Sketcher.Constraint("Vertical", 8, 3, 9, 3))
sketch5.addConstraint(Sketcher.Constraint("Vertical", 10, 3, 11, 3))
sketch5.addConstraint(Sketcher.Constraint("Vertical", 16, 3, 17, 3))
sketch5.addConstraint(Sketcher.Constraint("Vertical", 18, 3, 19, 3))
sketch5.addConstraint(Sketcher.Constraint("Diameter", 0, Q("4 mm")))
sketch5.addConstraint(Sketcher.Constraint("DistanceY", -1, 1, 20, 3, Q("73 mm")))
sketch5.addConstraint(Sketcher.Constraint("DistanceX", 0, 3, 1, 3, Q("73 mm")))
sketch5.addConstraint(Sketcher.Constraint("DistanceY", 0, 3, 2, 3, Q("70 mm")))
sketch5.addConstraint(Sketcher.Constraint("DistanceX", 16, 3, 0, 3, Q("70 mm")))
sketch5.addConstraint(Sketcher.Constraint("DistanceX", 5, 3, -1, 1, Q("30 mm")))
sketch5.addConstraint(Sketcher.Constraint("DistanceY", -1, 1, 8, 3, Q("88 mm")))
sketch5.addConstraint(Sketcher.Constraint("DistanceY", -1, 1, 9, 3, Q("49 mm")))
sketch5.addConstraint(Sketcher.Constraint("DistanceX", 20, 3, -1, 1, Q("9 mm")))
sketch5.addConstraint(Sketcher.Constraint("DistanceX", 2, 3, 8, 3, Q("13 mm")))
sketch5.addConstraint(Sketcher.Constraint("DistanceX", 8, 3, 10, 3, Q("51 mm")))
sketch5.addConstraint(Sketcher.Constraint("DistanceY", 17, 3, 16, 3, Q("34 mm")))
sketch5.addConstraint(Sketcher.Constraint("DistanceX", 18, 3, 0, 3, Q("16 mm")))
sketch5.addConstraint(Sketcher.Constraint("DistanceX", 0, 3, -1, 1, Q("5.5 mm")))
sketch5.addConstraint(Sketcher.Constraint("DistanceY", 16, 3, -1, 1, Q("56.5 mm")))
sketch5.addConstraint(Sketcher.Constraint("DistanceY", 7, 3, 5, 3, Q("76.2 mm")))
sketch5.addConstraint(Sketcher.Constraint("DistanceX", 4, 3, -1, 1, Q("78.26 mm")))
sketch5.addConstraint(Sketcher.Constraint("DistanceY", 4, 3, 5, 3, Q("1.27 mm")))
sketch5.addConstraint(Sketcher.Constraint("DistanceY", 6, 3, 5, 3, Q("82.55 mm")))
sketch5.addConstraint(Sketcher.Constraint("DistanceY", -1, 1, 4, 3, Q("47.055 mm")))
pocket2 = body.newObject("PartDesign::Pocket", "Pocket001")
pocket2.Profile = sketch5
pocket2.Length = 5
pocket2.Reversed = True

sketch6 = body.newObject("Sketcher::SketchObject", "Sketch005")
sketch6.AttachmentSupport = (doc.getObject("XZ_Plane"), [""])
sketch6.MapMode = "FlatFace"
sketch6.AttachmentOffset = App.Placement(V(0, 0, -52), App.Rotation())
sketch6.addGeometry(Part.Circle(V(54.5, 95, 0), V(0, 0, 1), 2), False)
sketch6.addGeometry(Part.Circle(V(-82.5, 95, 0), V(0, 0, 1), 2), False)
sketch6.addGeometry(Part.Circle(V(-82.5, -95, 0), V(0, 0, 1), 2), False)
sketch6.addGeometry(Part.Circle(V(54.5, -95, 0), V(0, 0, 1), 2), False)
sketch6.addConstraint(Sketcher.Constraint("Equal", 0, 1))
sketch6.addConstraint(Sketcher.Constraint("Equal", 1, 2))
sketch6.addConstraint(Sketcher.Constraint("Equal", 2, 3))
sketch6.addConstraint(Sketcher.Constraint("Symmetric", 1, 3, 2, 3, -1))
sketch6.addConstraint(Sketcher.Constraint("Symmetric", 0, 3, 3, 3, -1))
sketch6.addConstraint(Sketcher.Constraint("Horizontal", 0, 3, 1, 3))
sketch6.addConstraint(Sketcher.Constraint("Diameter", 0, Q("4 mm")))
sketch6.addConstraint(Sketcher.Constraint("DistanceY", -1, 1, 0, 3, Q("95 mm")))
sketch6.addConstraint(Sketcher.Constraint("DistanceX", 1, 3, 0, 3, Q("137 mm")))
sketch6.addConstraint(Sketcher.Constraint("DistanceX", -1, 1, 0, 3, Q("54.5 mm")))
pocket3 = body.newObject("PartDesign::Pocket", "Pocket002")
pocket3.Profile = sketch6
pocket3.Length = 5
pocket3.Reversed = True

sketch7 = body.newObject("Sketcher::SketchObject", "Sketch006")
sketch7.AttachmentSupport = (doc.getObject("XZ_Plane"), [""])
sketch7.MapMode = "FlatFace"
sketch7.AttachmentOffset = App.Placement(V(0, 0, -2), App.Rotation())
sketch7.addGeometry(Part.Circle(V(69.5, -10, 0), V(0, 0, 1), 1.6), False)
sketch7.addGeometry(Part.Circle(V(69.5, 10, 0), V(0, 0, 1), 1.6), False)
sketch7.addGeometry(Part.Circle(V(20.609, -42.961, 0), V(0, 0, 1), 1.6), False)
sketch7.addGeometry(Part.Circle(V(17.873, -35.444, 0), V(0, 0, 1), 1.6), False)
sketch7.addGeometry(Part.Circle(V(20.609, 42.961, 0), V(0, 0, 1), 1.6), False)
sketch7.addGeometry(Part.Circle(V(17.873, 35.444, 0), V(0, 0, 1), 1.6), False)
sketch7.addConstraint(Sketcher.Constraint("Equal", 0, 1))
sketch7.addConstraint(Sketcher.Constraint("Equal", 1, 2))
sketch7.addConstraint(Sketcher.Constraint("Equal", 2, 3))
sketch7.addConstraint(Sketcher.Constraint("Equal", 3, 4))
sketch7.addConstraint(Sketcher.Constraint("Equal", 4, 5))
sketch7.addConstraint(Sketcher.Constraint("Symmetric", 0, 3, 1, 3, -1))
sketch7.addConstraint(Sketcher.Constraint("Symmetric", 2, 3, 4, 3, -1))
sketch7.addConstraint(Sketcher.Constraint("Symmetric", 3, 3, 5, 3, -1))
sketch7.addConstraint(Sketcher.Constraint("Diameter", 0, Q("3.2 mm")))
sketch7.addConstraint(Sketcher.Constraint("DistanceY", 0, 3, -1, 1, Q("10 mm")))
sketch7.addConstraint(Sketcher.Constraint("DistanceY", 2, 3, -1, 1, Q("42.961 mm")))
sketch7.addConstraint(Sketcher.Constraint("DistanceY", 3, 3, -1, 1, Q("35.444 mm")))
sketch7.addConstraint(Sketcher.Constraint("DistanceX", -1, 1, 0, 3, Q("69.5 mm")))
sketch7.addConstraint(Sketcher.Constraint("DistanceX", -1, 1, 2, 3, Q("20.609 mm")))
sketch7.addConstraint(Sketcher.Constraint("DistanceX", -1, 1, 3, 3, Q("17.873 mm")))
pocket4 = body.newObject("PartDesign::Pocket", "Pocket003")
pocket4.Profile = sketch7
pocket4.Length = 2
pocket4.Reversed = True

doc.recompute()
